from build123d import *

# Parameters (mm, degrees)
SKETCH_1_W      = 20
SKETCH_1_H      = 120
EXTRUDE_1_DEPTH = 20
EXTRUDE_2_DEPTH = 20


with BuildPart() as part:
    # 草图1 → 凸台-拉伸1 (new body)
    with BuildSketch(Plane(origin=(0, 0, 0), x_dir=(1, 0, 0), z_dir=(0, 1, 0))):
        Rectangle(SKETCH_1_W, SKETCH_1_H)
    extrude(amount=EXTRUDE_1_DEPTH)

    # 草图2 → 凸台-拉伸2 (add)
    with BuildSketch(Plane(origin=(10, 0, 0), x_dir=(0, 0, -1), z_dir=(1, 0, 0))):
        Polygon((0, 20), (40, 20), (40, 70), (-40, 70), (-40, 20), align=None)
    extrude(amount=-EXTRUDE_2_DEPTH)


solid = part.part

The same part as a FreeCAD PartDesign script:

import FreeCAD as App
import Part
import Sketcher
Q = App.Units.Quantity

doc = App.newDocument("Part")
body = doc.addObject("PartDesign::Body", "Body")

# Sketch on XZ plane
sketch1 = body.newObject("Sketcher::SketchObject", "Sketch")
sketch1.AttachmentSupport = (doc.getObject("XZ_Plane"), [""])
sketch1.MapMode = "FlatFace"
sketch1.addGeometry([
    Part.LineSegment(App.Vector(-10, -60, 0), App.Vector(-10, 60, 0)),
    Part.LineSegment(App.Vector(-10, 60, 0), App.Vector(10, 60, 0)),
    Part.LineSegment(App.Vector(10, 60, 0), App.Vector(10, -60, 0)),
    Part.LineSegment(App.Vector(10, -60, 0), App.Vector(-10, -60, 0)),
], False)
sketch1.addConstraint([
    Sketcher.Constraint("Coincident", 0, 2, 1, 1),
    Sketcher.Constraint("Coincident", 1, 2, 2, 1),
    Sketcher.Constraint("Coincident", 2, 2, 3, 1),
    Sketcher.Constraint("Coincident", 3, 2, 0, 1),
    Sketcher.Constraint("Vertical", 0),
    Sketcher.Constraint("Horizontal", 1),
    Sketcher.Constraint("Vertical", 2),
    Sketcher.Constraint("Horizontal", 3),
    Sketcher.Constraint("Symmetric", 0, 2, 2, 2, -1, 1),
    Sketcher.Constraint("DistanceX", 1, 1, 1, 2, Q("20 mm")),
    Sketcher.Constraint("DistanceY", 0, 1, 0, 2, Q("120 mm")),
])
pad1 = body.newObject("PartDesign::Pad", "Pad")
pad1.Profile = sketch1
pad1.Length = 20
pad1.Reversed = True

# Sketch on YZ plane
sketch2 = body.newObject("Sketcher::SketchObject", "Sketch001")
sketch2.AttachmentSupport = (doc.getObject("YZ_Plane"), [""])
sketch2.MapMode = "FlatFace"
sketch2.AttachmentOffset = App.Placement(App.Vector(0, 0, 10), App.Rotation())
sketch2.addGeometry([
    Part.LineSegment(App.Vector(20, -40, 0), App.Vector(70, -40, 0)),
    Part.LineSegment(App.Vector(70, -40, 0), App.Vector(70, 40, 0)),
    Part.LineSegment(App.Vector(70, 40, 0), App.Vector(20, 40, 0)),
    Part.LineSegment(App.Vector(20, 40, 0), App.Vector(20, -40, 0)),
], False)
sketch2.addConstraint([
    Sketcher.Constraint("Coincident", 0, 2, 1, 1),
    Sketcher.Constraint("Coincident", 1, 2, 2, 1),
    Sketcher.Constraint("Coincident", 2, 2, 3, 1),
    Sketcher.Constraint("Coincident", 3, 2, 0, 1),
    Sketcher.Constraint("Horizontal", 0),
    Sketcher.Constraint("Vertical", 1),
    Sketcher.Constraint("Horizontal", 2),
    Sketcher.Constraint("Vertical", 3),
    Sketcher.Constraint("DistanceX", 0, 1, 0, 2, Q("50 mm")),
    Sketcher.Constraint("DistanceY", 1, 1, 1, 2, Q("80 mm")),
    Sketcher.Constraint("DistanceX", -1, 1, 0, 2, Q("70 mm")),
    Sketcher.Constraint("DistanceY", 0, 2, -1, 1, Q("40 mm")),
])
pad2 = body.newObject("PartDesign::Pad", "Pad001")
pad2.Profile = sketch2
pad2.Length = 20
pad2.Reversed = True

doc.recompute()
